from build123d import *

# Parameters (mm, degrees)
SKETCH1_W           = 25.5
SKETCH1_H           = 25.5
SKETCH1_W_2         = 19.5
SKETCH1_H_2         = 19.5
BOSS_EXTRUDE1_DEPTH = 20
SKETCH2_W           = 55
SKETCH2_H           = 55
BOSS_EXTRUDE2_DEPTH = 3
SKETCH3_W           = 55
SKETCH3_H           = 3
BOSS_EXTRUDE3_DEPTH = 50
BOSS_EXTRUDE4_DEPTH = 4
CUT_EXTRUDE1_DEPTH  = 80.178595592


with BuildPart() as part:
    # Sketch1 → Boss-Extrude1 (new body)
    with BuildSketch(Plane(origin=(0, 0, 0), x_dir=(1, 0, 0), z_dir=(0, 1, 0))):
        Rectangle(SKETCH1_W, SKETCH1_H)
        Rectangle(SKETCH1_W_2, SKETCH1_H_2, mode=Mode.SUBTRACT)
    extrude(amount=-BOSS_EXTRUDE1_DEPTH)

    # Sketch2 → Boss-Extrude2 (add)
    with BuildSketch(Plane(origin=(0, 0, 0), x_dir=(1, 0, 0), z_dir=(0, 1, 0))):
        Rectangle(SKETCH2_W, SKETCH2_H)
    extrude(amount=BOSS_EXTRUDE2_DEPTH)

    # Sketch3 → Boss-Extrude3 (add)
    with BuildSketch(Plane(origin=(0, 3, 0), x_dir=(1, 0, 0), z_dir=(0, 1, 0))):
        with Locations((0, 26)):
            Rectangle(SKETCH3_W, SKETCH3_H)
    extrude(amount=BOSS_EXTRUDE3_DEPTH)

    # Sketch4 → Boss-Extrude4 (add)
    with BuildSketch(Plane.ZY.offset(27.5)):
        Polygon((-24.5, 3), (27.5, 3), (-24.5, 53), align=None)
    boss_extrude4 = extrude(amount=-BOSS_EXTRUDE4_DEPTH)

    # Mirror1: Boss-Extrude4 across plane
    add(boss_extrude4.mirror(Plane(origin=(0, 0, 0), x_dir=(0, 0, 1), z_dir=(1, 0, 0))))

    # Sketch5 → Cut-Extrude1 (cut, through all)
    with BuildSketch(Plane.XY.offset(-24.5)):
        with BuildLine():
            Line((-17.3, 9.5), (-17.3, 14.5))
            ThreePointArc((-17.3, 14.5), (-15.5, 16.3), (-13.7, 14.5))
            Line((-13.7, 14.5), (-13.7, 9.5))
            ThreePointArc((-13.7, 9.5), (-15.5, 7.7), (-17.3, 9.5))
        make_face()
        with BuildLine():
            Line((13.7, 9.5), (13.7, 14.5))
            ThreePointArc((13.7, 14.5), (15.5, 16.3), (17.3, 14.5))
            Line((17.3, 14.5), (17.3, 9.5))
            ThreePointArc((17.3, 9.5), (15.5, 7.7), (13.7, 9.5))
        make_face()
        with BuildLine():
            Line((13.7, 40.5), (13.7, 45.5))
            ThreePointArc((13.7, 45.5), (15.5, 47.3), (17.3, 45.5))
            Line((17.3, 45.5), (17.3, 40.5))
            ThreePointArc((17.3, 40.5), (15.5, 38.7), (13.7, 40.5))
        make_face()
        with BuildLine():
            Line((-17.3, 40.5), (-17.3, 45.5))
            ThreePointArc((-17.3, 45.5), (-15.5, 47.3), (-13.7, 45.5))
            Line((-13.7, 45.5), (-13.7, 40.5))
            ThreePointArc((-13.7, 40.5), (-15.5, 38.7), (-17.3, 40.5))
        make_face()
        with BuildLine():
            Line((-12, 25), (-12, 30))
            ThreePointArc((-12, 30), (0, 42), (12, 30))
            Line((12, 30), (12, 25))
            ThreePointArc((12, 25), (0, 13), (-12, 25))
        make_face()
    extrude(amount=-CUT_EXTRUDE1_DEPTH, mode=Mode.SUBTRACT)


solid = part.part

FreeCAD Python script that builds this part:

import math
import FreeCAD as App
import Part
import Sketcher
from FreeCAD import Vector


def add_polygon(sketch, points):
    """Adds a closed chain of lines whose ends are joined by coincident constraints."""
    first, n = sketch.GeometryCount, len(points)
    for a, b in zip(points, points[1:] + points[:1]):
        sketch.addGeometry(Part.LineSegment(App.Vector(*a, 0), App.Vector(*b, 0)), False)
    for i in range(n):
        sketch.addConstraint(Sketcher.Constraint("Coincident", first + i, 2, first + (i + 1) % n, 1))

doc = App.newDocument("Part")
body = doc.addObject("PartDesign::Body", "Body")

sketch1 = body.newObject("Sketcher::SketchObject", "Sketch")
sketch1.AttachmentSupport = (doc.getObject("XZ_Plane"), [""])
sketch1.MapMode = "FlatFace"
add_polygon(sketch1, [(-13, -13), (-13, 13), (13, 13), (13, -13)])
add_polygon(sketch1, [(10, 10), (-10, 10), (-10, -10), (10, -10)])
sketch1.addConstraint([
    Sketcher.Constraint("Vertical", 0),
    Sketcher.Constraint("Horizontal", 1),
    Sketcher.Constraint("Vertical", 2),
    Sketcher.Constraint("Horizontal", 3),
    Sketcher.Constraint("Horizontal", 4),
    Sketcher.Constraint("Vertical", 5),
    Sketcher.Constraint("Horizontal", 6),
    Sketcher.Constraint("Vertical", 7),
    Sketcher.Constraint("Symmetric", 0, 2, 2, 2, -1, 1),
    Sketcher.Constraint("Symmetric", 4, 2, 6, 2, -1, 1),
    Sketcher.Constraint("Equal", 3, 0),
    Sketcher.Constraint("Equal", 6, 5),
    Sketcher.Constraint("DistanceX", 1, 1, 1, 2, 25.5),
    Sketcher.Constraint("DistanceX", 4, 2, 4, 1, 19.5),
])
pad1 = body.newObject("PartDesign::Pad", "Pad")
pad1.Profile = sketch1
pad1.Length = 20

sketch2 = body.newObject("Sketcher::SketchObject", "Sketch001")
sketch2.AttachmentSupport = (doc.getObject("XZ_Plane"), [""])
sketch2.MapMode = "FlatFace"
add_polygon(sketch2, [(-28, -28), (-28, 28), (28, 28), (28, -28)])
sketch2.addConstraint([
    Sketcher.Constraint("Vertical", 0),
    Sketcher.Constraint("Horizontal", 1),
    Sketcher.Constraint("Vertical", 2),
    Sketcher.Constraint("Horizontal", 3),
    Sketcher.Constraint("Symmetric", 0, 2, 2, 2, -1, 1),
    Sketcher.Constraint("Equal", 3, 0),
    Sketcher.Constraint("DistanceX", 1, 1, 1, 2, 55.0),
])
pad2 = body.newObject("PartDesign::Pad", "Pad001")
pad2.Profile = sketch2
pad2.Length = 3
pad2.Reversed = True

sketch3 = body.newObject("Sketcher::SketchObject", "Sketch002")
sketch3.AttachmentSupport = (doc.getObject("XZ_Plane"), [""])
sketch3.MapMode = "FlatFace"
sketch3.AttachmentOffset = App.Placement(Vector(0, 0, -3), App.Rotation())
add_polygon(sketch3, [(-27.5, -27.5), (-27.5, -24.5), (27.5, -24.5), (27.5, -27.5)])
sketch3.addConstraint([
    Sketcher.Constraint("Vertical", 0),
    Sketcher.Constraint("Horizontal", 1),
    Sketcher.Constraint("Vertical", 2),
    Sketcher.Constraint("Horizontal", 3),
    Sketcher.Constraint("DistanceX", 1, 1, 1, 2, 55.0),
    Sketcher.Constraint("DistanceY", 0, 1, 0, 2, 3.0),
    Sketcher.Constraint("DistanceX", 0, 2, -1, 1, 27.5),
    Sketcher.Constraint("DistanceY", 0, 2, -1, 1, 24.5),
])
pad3 = body.newObject("PartDesign::Pad", "Pad002")
pad3.Profile = sketch3
pad3.Length = 50
pad3.Reversed = True

sketch4 = body.newObject("Sketcher::SketchObject", "Sketch003")
sketch4.AttachmentSupport = (doc.getObject("YZ_Plane"), [""])
sketch4.MapMode = "FlatFace"
sketch4.AttachmentOffset = App.Placement(Vector(0, 0, -27.5), App.Rotation())
add_polygon(sketch4, [(3, -24), (3, 28), (53, -24)])
sketch4.addConstraint([
    Sketcher.Constraint("Vertical", 0),
    Sketcher.Constraint("Horizontal", 2),
    Sketcher.Constraint("DistanceX", 2, 2, 2, 1, 50.0),
    Sketcher.Constraint("DistanceY", 0, 1, 0, 2, 52.0),
    Sketcher.Constraint("DistanceX", -1, 1, 0, 2, 3.0),
    Sketcher.Constraint("DistanceY", -1, 1, 0, 2, 27.5),
])
pad4 = body.newObject("PartDesign::Pad", "Pad003")
pad4.Profile = sketch4
pad4.Length = 4
doc.recompute()

mirrored = body.newObject("PartDesign::Mirrored", "Mirrored")
mirrored.Originals = [pad4]
mirrored.MirrorPlane = (doc.getObject("YZ_Plane"), [""])
body.Tip = mirrored

sketch5 = body.newObject("Sketcher::SketchObject", "Sketch004")
sketch5.AttachmentSupport = (doc.getObject("XY_Plane"), [""])
sketch5.MapMode = "FlatFace"
sketch5.AttachmentOffset = App.Placement(Vector(0, 0, -24.5), App.Rotation())
sketch5.addGeometry([
    Part.LineSegment(Vector(-17.3, 14.5, 0), Vector(-17.3, 9.5, 0)),
    Part.ArcOfCircle(Part.Circle(Vector(-15.5, 9.5, 0), Vector(0, 0, 1), 1.8), math.radians(180), math.radians(360)),
    Part.LineSegment(Vector(-13.7, 9.5, 0), Vector(-13.7, 14.5, 0)),
    Part.ArcOfCircle(Part.Circle(Vector(-15.5, 14.5, 0), Vector(0, 0, 1), 1.8), math.radians(0), math.radians(180)),
    Part.LineSegment(Vector(13.7, 14.5, 0), Vector(13.7, 9.5, 0)),
    Part.ArcOfCircle(Part.Circle(Vector(15.5, 9.5, 0), Vector(0, 0, 1), 1.8), math.radians(180), math.radians(360)),
    Part.LineSegment(Vector(17.3, 9.5, 0), Vector(17.3, 14.5, 0)),
    Part.ArcOfCircle(Part.Circle(Vector(15.5, 14.5, 0), Vector(0, 0, 1), 1.8), math.radians(0), math.radians(180)),
    Part.LineSegment(Vector(13.7, 45.5, 0), Vector(13.7, 40.5, 0)),
    Part.ArcOfCircle(Part.Circle(Vector(15.5, 40.5, 0), Vector(0, 0, 1), 1.8), math.radians(180), math.radians(360)),
    Part.LineSegment(Vector(17.3, 40.5, 0), Vector(17.3, 45.5, 0)),
    Part.ArcOfCircle(Part.Circle(Vector(15.5, 45.5, 0), Vector(0, 0, 1), 1.8), math.radians(0), math.radians(180)),
    Part.LineSegment(Vector(-17.3, 45.5, 0), Vector(-17.3, 40.5, 0)),
    Part.ArcOfCircle(Part.Circle(Vector(-15.5, 40.5, 0), Vector(0, 0, 1), 1.8), math.radians(180), math.radians(360)),
    Part.LineSegment(Vector(-13.7, 40.5, 0), Vector(-13.7, 45.5, 0)),
    Part.ArcOfCircle(Part.Circle(Vector(-15.5, 45.5, 0), Vector(0, 0, 1), 1.8), math.radians(0), math.radians(180)),
    Part.LineSegment(Vector(-12, 30, 0), Vector(-12, 25, 0)),
    Part.ArcOfCircle(Part.Circle(Vector(0, 25, 0), Vector(0, 0, 1), 12), math.radians(180), math.radians(360)),
    Part.LineSegment(Vector(12, 25, 0), Vector(12, 30, 0)),
    Part.ArcOfCircle(Part.Circle(Vector(0, 30, 0), Vector(0, 0, 1), 12), math.radians(0), math.radians(180)),
], False)
sketch5.addConstraint([
    Sketcher.Constraint("Tangent", 0, 2, 1, 1),
    Sketcher.Constraint("Tangent", 1, 2, 2, 1),
    Sketcher.Constraint("Tangent", 2, 2, 3, 1),
    Sketcher.Constraint("Tangent", 3, 2, 0, 1),
    Sketcher.Constraint("Tangent", 4, 2, 5, 1),
    Sketcher.Constraint("Tangent", 5, 2, 6, 1),
    Sketcher.Constraint("Tangent", 6, 2, 7, 1),
    Sketcher.Constraint("Tangent", 7, 2, 4, 1),
    Sketcher.Constraint("Tangent", 8, 2, 9, 1),
    Sketcher.Constraint("Tangent", 9, 2, 10, 1),
    Sketcher.Constraint("Tangent", 10, 2, 11, 1),
    Sketcher.Constraint("Tangent", 11, 2, 8, 1),
    Sketcher.Constraint("Tangent", 12, 2, 13, 1),
    Sketcher.Constraint("Tangent", 13, 2, 14, 1),
    Sketcher.Constraint("Tangent", 14, 2, 15, 1),
    Sketcher.Constraint("Tangent", 15, 2, 12, 1),
    Sketcher.Constraint("Tangent", 16, 2, 17, 1),
    Sketcher.Constraint("Tangent", 17, 2, 18, 1),
    Sketcher.Constraint("Tangent", 18, 2, 19, 1),
    Sketcher.Constraint("Tangent", 19, 2, 16, 1),
    Sketcher.Constraint("Vertical", 0),
    Sketcher.Constraint("Vertical", 2),
    Sketcher.Constraint("Vertical", 4),
    Sketcher.Constraint("Vertical", 6),
    Sketcher.Constraint("Vertical", 8),
    Sketcher.Constraint("Vertical", 10),
    Sketcher.Constraint("Vertical", 12),
    Sketcher.Constraint("Vertical", 14),
    Sketcher.Constraint("Vertical", 16),
    Sketcher.Constraint("Vertical", 18),
    Sketcher.Constraint("Equal", 3, 5),
    Sketcher.Constraint("Equal", 7, 9),
    Sketcher.Constraint("Equal", 11, 13),
    Sketcher.Constraint("Symmetric", 1, 3, 5, 3, -2),
    Sketcher.Constraint("Symmetric", 9, 3, 13, 3, -2),
    Sketcher.Constraint("PointOnObject", 17, 3, -2),
    Sketcher.Constraint("Horizontal", 3, 3, 7, 3),
    Sketcher.Constraint("Horizontal", 11, 3, 15, 3),
    Sketcher.Constraint("Vertical", 7, 3, 9, 3),
    Sketcher.Constraint("Equal", 6, 8),
    Sketcher.Constraint("Equal", 14, 16),
    Sketcher.Constraint("Radius", 17, 12.0),
    Sketcher.Constraint("Radius", 1, 1.8),
    Sketcher.Constraint("DistanceY", 0, 2, 0, 1, 5.0),
    Sketcher.Constraint("DistanceY", -1, 1, 17, 3, 25.0),
    Sketcher.Constraint("DistanceX", 1, 3, 5, 3, 31.0),
    Sketcher.Constraint("DistanceY", 7, 3, 9, 3, 26.0),
    Sketcher.Constraint("DistanceY", -1, 1, 1, 3, 9.5),
])
pocket1 = body.newObject("PartDesign::Pocket", "Pocket")
pocket1.Profile = sketch5
pocket1.Type = "ThroughAll"

doc.recompute()
